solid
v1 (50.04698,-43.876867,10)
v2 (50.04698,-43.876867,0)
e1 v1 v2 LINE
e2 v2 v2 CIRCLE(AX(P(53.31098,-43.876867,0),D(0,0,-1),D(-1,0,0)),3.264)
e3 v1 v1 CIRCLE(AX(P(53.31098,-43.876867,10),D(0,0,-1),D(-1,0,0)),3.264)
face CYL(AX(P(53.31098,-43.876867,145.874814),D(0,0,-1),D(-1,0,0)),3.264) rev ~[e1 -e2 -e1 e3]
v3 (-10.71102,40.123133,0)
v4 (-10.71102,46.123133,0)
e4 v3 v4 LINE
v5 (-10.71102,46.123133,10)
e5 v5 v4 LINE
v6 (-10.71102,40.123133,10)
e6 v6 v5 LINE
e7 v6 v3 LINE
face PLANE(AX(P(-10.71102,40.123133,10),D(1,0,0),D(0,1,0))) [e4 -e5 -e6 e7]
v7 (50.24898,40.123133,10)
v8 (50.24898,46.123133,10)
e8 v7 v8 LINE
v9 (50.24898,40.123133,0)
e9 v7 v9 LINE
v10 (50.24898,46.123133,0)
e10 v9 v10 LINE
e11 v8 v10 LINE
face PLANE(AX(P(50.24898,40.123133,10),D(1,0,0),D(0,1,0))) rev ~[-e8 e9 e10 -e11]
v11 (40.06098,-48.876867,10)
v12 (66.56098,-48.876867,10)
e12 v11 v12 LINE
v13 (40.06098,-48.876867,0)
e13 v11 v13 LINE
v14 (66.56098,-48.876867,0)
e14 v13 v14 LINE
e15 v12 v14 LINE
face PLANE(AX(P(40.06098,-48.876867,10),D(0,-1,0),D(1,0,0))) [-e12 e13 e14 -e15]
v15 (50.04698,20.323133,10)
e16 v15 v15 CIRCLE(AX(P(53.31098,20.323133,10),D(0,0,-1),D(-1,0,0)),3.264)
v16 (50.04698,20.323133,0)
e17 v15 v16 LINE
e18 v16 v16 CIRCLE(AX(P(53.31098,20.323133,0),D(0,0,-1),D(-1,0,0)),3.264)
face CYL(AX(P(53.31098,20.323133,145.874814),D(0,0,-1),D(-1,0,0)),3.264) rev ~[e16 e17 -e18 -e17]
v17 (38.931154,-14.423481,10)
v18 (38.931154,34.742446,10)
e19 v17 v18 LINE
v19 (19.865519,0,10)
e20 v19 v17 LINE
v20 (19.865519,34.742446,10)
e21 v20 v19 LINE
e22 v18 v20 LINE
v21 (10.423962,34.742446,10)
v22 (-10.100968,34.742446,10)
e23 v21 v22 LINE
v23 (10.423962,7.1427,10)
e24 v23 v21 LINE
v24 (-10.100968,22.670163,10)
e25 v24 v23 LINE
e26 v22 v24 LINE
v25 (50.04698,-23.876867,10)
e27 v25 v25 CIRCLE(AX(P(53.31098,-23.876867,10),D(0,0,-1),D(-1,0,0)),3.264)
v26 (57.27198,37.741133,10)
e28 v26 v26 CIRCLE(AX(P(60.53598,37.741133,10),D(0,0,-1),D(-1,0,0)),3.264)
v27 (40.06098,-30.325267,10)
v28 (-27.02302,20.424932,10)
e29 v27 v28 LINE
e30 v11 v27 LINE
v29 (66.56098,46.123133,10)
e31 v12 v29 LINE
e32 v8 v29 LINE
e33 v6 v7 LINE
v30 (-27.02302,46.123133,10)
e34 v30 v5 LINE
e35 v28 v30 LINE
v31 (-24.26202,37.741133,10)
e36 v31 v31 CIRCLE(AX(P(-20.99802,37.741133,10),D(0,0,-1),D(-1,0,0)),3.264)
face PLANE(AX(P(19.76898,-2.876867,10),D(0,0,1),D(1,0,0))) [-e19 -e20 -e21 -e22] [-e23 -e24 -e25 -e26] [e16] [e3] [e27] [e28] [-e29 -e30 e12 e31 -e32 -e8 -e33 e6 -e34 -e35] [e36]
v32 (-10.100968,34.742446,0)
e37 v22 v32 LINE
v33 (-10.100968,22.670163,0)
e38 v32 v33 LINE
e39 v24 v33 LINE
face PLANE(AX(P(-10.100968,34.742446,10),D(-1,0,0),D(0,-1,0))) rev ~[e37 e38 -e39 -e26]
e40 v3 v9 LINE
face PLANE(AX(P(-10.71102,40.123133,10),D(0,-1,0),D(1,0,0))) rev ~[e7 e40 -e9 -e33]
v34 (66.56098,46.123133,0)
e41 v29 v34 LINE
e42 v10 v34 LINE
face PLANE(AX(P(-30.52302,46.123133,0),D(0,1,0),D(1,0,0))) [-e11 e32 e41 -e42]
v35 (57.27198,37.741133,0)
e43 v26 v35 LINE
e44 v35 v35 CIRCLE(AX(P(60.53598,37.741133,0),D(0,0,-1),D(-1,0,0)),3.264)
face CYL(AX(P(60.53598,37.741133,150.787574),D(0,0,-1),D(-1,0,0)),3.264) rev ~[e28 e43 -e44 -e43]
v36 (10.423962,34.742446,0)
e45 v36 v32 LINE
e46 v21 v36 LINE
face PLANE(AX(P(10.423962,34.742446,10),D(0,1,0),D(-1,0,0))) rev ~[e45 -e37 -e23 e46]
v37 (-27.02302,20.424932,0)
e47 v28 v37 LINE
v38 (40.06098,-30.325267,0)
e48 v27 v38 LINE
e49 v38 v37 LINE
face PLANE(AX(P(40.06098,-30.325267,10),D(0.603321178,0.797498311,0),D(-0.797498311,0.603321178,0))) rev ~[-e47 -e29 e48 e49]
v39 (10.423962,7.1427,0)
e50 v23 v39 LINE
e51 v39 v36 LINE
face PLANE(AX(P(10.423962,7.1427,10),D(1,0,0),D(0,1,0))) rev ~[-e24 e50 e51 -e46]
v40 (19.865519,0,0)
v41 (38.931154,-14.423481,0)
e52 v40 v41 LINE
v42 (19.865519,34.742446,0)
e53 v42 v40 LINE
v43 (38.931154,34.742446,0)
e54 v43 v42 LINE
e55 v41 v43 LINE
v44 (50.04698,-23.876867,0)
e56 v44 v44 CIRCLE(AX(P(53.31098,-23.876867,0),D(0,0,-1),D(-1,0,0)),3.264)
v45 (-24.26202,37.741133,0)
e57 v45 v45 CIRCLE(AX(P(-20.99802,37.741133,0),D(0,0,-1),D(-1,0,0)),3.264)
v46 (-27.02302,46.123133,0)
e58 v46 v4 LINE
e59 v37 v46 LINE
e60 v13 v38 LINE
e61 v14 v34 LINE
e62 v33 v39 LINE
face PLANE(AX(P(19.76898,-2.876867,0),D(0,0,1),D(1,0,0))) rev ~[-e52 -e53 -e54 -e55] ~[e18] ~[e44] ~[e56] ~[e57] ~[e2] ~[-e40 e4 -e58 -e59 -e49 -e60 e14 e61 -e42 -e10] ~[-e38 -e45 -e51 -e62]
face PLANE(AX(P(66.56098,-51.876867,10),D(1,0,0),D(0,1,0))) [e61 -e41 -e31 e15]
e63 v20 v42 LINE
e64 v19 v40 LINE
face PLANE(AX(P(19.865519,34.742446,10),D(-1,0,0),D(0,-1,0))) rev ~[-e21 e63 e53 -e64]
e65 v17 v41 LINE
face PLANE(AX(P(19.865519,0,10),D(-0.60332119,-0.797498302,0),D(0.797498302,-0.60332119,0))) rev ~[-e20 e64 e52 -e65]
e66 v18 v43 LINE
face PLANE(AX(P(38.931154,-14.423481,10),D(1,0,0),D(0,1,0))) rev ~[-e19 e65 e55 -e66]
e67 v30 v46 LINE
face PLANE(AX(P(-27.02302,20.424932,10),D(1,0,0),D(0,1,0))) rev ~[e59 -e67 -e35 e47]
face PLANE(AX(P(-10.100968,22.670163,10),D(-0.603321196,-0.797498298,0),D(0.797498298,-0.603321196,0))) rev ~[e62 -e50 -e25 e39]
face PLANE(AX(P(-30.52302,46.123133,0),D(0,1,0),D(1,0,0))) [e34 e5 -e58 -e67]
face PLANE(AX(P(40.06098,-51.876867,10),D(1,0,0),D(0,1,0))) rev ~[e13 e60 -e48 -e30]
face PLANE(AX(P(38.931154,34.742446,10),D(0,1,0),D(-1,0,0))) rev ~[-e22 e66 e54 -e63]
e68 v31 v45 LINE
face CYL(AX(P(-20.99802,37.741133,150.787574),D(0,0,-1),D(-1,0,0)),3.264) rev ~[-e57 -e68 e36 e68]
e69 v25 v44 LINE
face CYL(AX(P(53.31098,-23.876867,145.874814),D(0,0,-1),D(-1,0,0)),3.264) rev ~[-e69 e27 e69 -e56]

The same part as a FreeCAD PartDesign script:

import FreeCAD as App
import Part
import Sketcher
from FreeCAD import Vector


def add_polygon(sketch, points):
    """Adds a closed chain of lines whose ends are joined by coincident constraints."""
    first, n = sketch.GeometryCount, len(points)
    for a, b in zip(points, points[1:] + points[:1]):
        sketch.addGeometry(Part.LineSegment(App.Vector(*a, 0), App.Vector(*b, 0)), False)
    for i in range(n):
        sketch.addConstraint(Sketcher.Constraint("Coincident", first + i, 2, first + (i + 1) % n, 1))

doc = App.newDocument("Part")
body = doc.addObject("PartDesign::Body", "Body")

# Sketch on XY plane
sketch1 = body.newObject("Sketcher::SketchObject", "Sketch")
sketch1.AttachmentSupport = (doc.getObject("XY_Plane"), [""])
sketch1.MapMode = "FlatFace"
add_polygon(sketch1, [(-31, 46), (-31, -52), (70, -52), (70, 46)])  # lines 0-3
sketch1.addConstraint(Sketcher.Constraint("Vertical", 0))
sketch1.addConstraint(Sketcher.Constraint("Horizontal", 1))
sketch1.addConstraint(Sketcher.Constraint("Vertical", 2))
sketch1.addConstraint(Sketcher.Constraint("Horizontal", 3))
sketch1.addConstraint(Sketcher.Constraint("DistanceY", 0, 2, 0, 1, 98.0))
sketch1.addConstraint(Sketcher.Constraint("DistanceX", 1, 1, 1, 2, 100.584))
sketch1.addConstraint(Sketcher.Constraint("DistanceX", 0, 2, -1, 1, 30.52302))
sketch1.addConstraint(Sketcher.Constraint("DistanceY", 0, 2, -1, 1, 51.876867))
pad1 = body.newObject("PartDesign::Pad", "Pad")
pad1.Profile = sketch1
pad1.Length = 10

# Sketch on XY plane
sketch2 = body.newObject("Sketcher::SketchObject", "Sketch001")
sketch2.AttachmentSupport = (doc.getObject("XY_Plane"), [""])
sketch2.MapMode = "FlatFace"
sketch2.AttachmentOffset = App.Placement(Vector(0, 0, 10), App.Rotation())
sketch2.addGeometry(Part.Circle(Vector(-21, 37.7, 0), Vector(0, 0, 1), 3.3), False)
sketch2.addGeometry(Part.Circle(Vector(60.5, 37.7, 0), Vector(0, 0, 1), 3.3), False)
sketch2.addConstraint(Sketcher.Constraint("Equal", 0, 1))
sketch2.addConstraint(Sketcher.Constraint("Horizontal", 0, 3, 1, 3))
sketch2.addConstraint(Sketcher.Constraint("Diameter", 0, 6.528))
sketch2.addConstraint(Sketcher.Constraint("DistanceX", 0, 3, 1, 3, 81.534))
sketch2.addConstraint(Sketcher.Constraint("DistanceX", 0, 3, -1, 1, 20.99802))
sketch2.addConstraint(Sketcher.Constraint("DistanceY", -1, 1, 0, 3, 37.741133))
doc.recompute()
hole = body.newObject("PartDesign::Hole", "Hole")
hole.Profile = sketch2
hole.ThreadType = "None"
hole.Diameter = 6.528
hole.DepthType = "ThroughAll"

# Sketch on XY plane
sketch3 = body.newObject("Sketcher::SketchObject", "Sketch002")
sketch3.AttachmentSupport = (doc.getObject("XY_Plane"), [""])
sketch3.MapMode = "FlatFace"
sketch3.AttachmentOffset = App.Placement(Vector(0, 0, 10), App.Rotation())
add_polygon(sketch3, [(-11, 46), (-11, 40), (50, 40), (50, 46)])  # lines 0-3
sketch3.addConstraint(Sketcher.Constraint("Vertical", 0))
sketch3.addConstraint(Sketcher.Constraint("Horizontal", 1))
sketch3.addConstraint(Sketcher.Constraint("Vertical", 2))
sketch3.addConstraint(Sketcher.Constraint("Horizontal", 3))
sketch3.addConstraint(Sketcher.Constraint("DistanceY", 0, 2, 0, 1, 6.0))
sketch3.addConstraint(Sketcher.Constraint("DistanceX", 1, 1, 1, 2, 60.96))
sketch3.addConstraint(Sketcher.Constraint("DistanceX", 0, 2, -1, 1, 10.71102))
sketch3.addConstraint(Sketcher.Constraint("DistanceY", -1, 1, 0, 2, 40.123133))
pocket1 = body.newObject("PartDesign::Pocket", "Pocket")
pocket1.Profile = sketch3
pocket1.Type = "ThroughAll"

# Sketch on XY plane
sketch4 = body.newObject("Sketcher::SketchObject", "Sketch003")
sketch4.AttachmentSupport = (doc.getObject("XY_Plane"), [""])
sketch4.MapMode = "FlatFace"
sketch4.AttachmentOffset = App.Placement(Vector(0, 0, 10), App.Rotation())
add_polygon(sketch4, [(-31, -52), (40, -52), (40, -30), (-31, 23)])  # lines 0-3
sketch4.addConstraint(Sketcher.Constraint("Horizontal", 0))
sketch4.addConstraint(Sketcher.Constraint("Vertical", 1))
sketch4.addConstraint(Sketcher.Constraint("Vertical", 3))
sketch4.addConstraint(Sketcher.Constraint("DistanceX", 0, 1, 0, 2, 70.584))
sketch4.addConstraint(Sketcher.Constraint("DistanceY", 1, 1, 1, 2, 21.5516))
sketch4.addConstraint(Sketcher.Constraint("DistanceY", 3, 2, 3, 1, 74.949609))
sketch4.addConstraint(Sketcher.Constraint("DistanceX", -1, 1, 0, 2, 40.06098))
sketch4.addConstraint(Sketcher.Constraint("DistanceY", 0, 2, -1, 1, 51.876867))
pocket2 = body.newObject("PartDesign::Pocket", "Pocket001")
pocket2.Profile = sketch4
pocket2.Type = "ThroughAll"

# Sketch on XY plane
sketch5 = body.newObject("Sketcher::SketchObject", "Sketch004")
sketch5.AttachmentSupport = (doc.getObject("XY_Plane"), [""])
sketch5.MapMode = "FlatFace"
sketch5.AttachmentOffset = App.Placement(Vector(0, 0, 10), App.Rotation())
add_polygon(sketch5, [(-30.5, 23.1), (-27, 20.4), (-27, 46.1), (-30.5, 46.1)])  # lines 0-3
sketch5.addConstraint(Sketcher.Constraint("Vertical", 1))
sketch5.addConstraint(Sketcher.Constraint("Horizontal", 2))
sketch5.addConstraint(Sketcher.Constraint("Vertical", 3))
sketch5.addConstraint(Sketcher.Constraint("DistanceX", 2, 2, 2, 1, 3.5))
sketch5.addConstraint(Sketcher.Constraint("DistanceY", 1, 1, 1, 2, 25.698201))
sketch5.addConstraint(Sketcher.Constraint("DistanceY", 3, 2, 3, 1, 23.050391))
sketch5.addConstraint(Sketcher.Constraint("DistanceX", 0, 2, -1, 1, 27.02302))
sketch5.addConstraint(Sketcher.Constraint("DistanceY", -1, 1, 0, 2, 20.424932))
pocket3 = body.newObject("PartDesign::Pocket", "Pocket002")
pocket3.Profile = sketch5
pocket3.Type = "ThroughAll"

# Sketch on XY plane
sketch6 = body.newObject("Sketcher::SketchObject", "Sketch005")
sketch6.AttachmentSupport = (doc.getObject("XY_Plane"), [""])
sketch6.MapMode = "FlatFace"
sketch6.AttachmentOffset = App.Placement(Vector(0, 0, 10), App.Rotation())
add_polygon(sketch6, [(66.6, 46.1), (66.6, -51.9), (70.1, -51.9), (70.1, 46.1)])  # lines 0-3
sketch6.addConstraint(Sketcher.Constraint("Vertical", 0))
sketch6.addConstraint(Sketcher.Constraint("Horizontal", 1))
sketch6.addConstraint(Sketcher.Constraint("Vertical", 2))
sketch6.addConstraint(Sketcher.Constraint("Horizontal", 3))
sketch6.addConstraint(Sketcher.Constraint("DistanceY", 0, 2, 0, 1, 98.0))
sketch6.addConstraint(Sketcher.Constraint("DistanceX", 1, 1, 1, 2, 3.5))
sketch6.addConstraint(Sketcher.Constraint("DistanceX", -1, 1, 0, 2, 66.56098))
sketch6.addConstraint(Sketcher.Constraint("DistanceY", 0, 2, -1, 1, 51.876867))
pocket4 = body.newObject("PartDesign::Pocket", "Pocket003")
pocket4.Profile = sketch6
pocket4.Type = "ThroughAll"

# Sketch on XY plane
sketch7 = body.newObject("Sketcher::SketchObject", "Sketch006")
sketch7.AttachmentSupport = (doc.getObject("XY_Plane"), [""])
sketch7.MapMode = "FlatFace"
sketch7.AttachmentOffset = App.Placement(Vector(0, 0, 10), App.Rotation())
sketch7.addGeometry(Part.Circle(Vector(53.3, 20.3, 0), Vector(0, 0, 1), 3.3), False)
sketch7.addGeometry(Part.Circle(Vector(53.3, -43.9, 0), Vector(0, 0, 1), 3.3), False)
sketch7.addGeometry(Part.Circle(Vector(53.3, -23.9, 0), Vector(0, 0, 1), 3.3), False)
sketch7.addConstraint(Sketcher.Constraint("Equal", 0, 1))
sketch7.addConstraint(Sketcher.Constraint("Equal", 1, 2))
sketch7.addConstraint(Sketcher.Constraint("Vertical", 0, 3, 1, 3))
sketch7.addConstraint(Sketcher.Constraint("Vertical", 1, 3, 2, 3))
sketch7.addConstraint(Sketcher.Constraint("Diameter", 0, 6.528))
sketch7.addConstraint(Sketcher.Constraint("DistanceY", 1, 3, 2, 3, 20.0))
sketch7.addConstraint(Sketcher.Constraint("DistanceY", 1, 3, 0, 3, 64.2))
sketch7.addConstraint(Sketcher.Constraint("DistanceX", -1, 1, 0, 3, 53.31098))
sketch7.addConstraint(Sketcher.Constraint("DistanceY", -1, 1, 0, 3, 20.323133))
doc.recompute()
hole2 = body.newObject("PartDesign::Hole", "Hole001")
hole2.Profile = sketch7
hole2.ThreadType = "None"
hole2.Diameter = 6.528
hole2.DepthType = "ThroughAll"

# Sketch on XY plane
sketch8 = body.newObject("Sketcher::SketchObject", "Sketch007")
sketch8.AttachmentSupport = (doc.getObject("XY_Plane"), [""])
sketch8.MapMode = "FlatFace"
sketch8.AttachmentOffset = App.Placement(Vector(0, 0, 10), App.Rotation())
add_polygon(sketch8, [(40.1, -48.9), (40.1, -51.9), (66.6, -51.9), (66.6, -48.9)])  # lines 0-3
sketch8.addConstraint(Sketcher.Constraint("Vertical", 0))
sketch8.addConstraint(Sketcher.Constraint("Horizontal", 1))
sketch8.addConstraint(Sketcher.Constraint("Vertical", 2))
sketch8.addConstraint(Sketcher.Constraint("Horizontal", 3))
sketch8.addConstraint(Sketcher.Constraint("DistanceY", 0, 2, 0, 1, 3.0))
sketch8.addConstraint(Sketcher.Constraint("DistanceX", 1, 1, 1, 2, 26.5))
sketch8.addConstraint(Sketcher.Constraint("DistanceX", -1, 1, 0, 2, 40.06098))
sketch8.addConstraint(Sketcher.Constraint("DistanceY", 0, 2, -1, 1, 51.876867))
pocket5 = body.newObject("PartDesign::Pocket", "Pocket004")
pocket5.Profile = sketch8
pocket5.Type = "ThroughAll"

# Sketch on XY plane
sketch9 = body.newObject("Sketcher::SketchObject", "Sketch008")
sketch9.AttachmentSupport = (doc.getObject("XY_Plane"), [""])
sketch9.MapMode = "FlatFace"
sketch9.AttachmentOffset = App.Placement(Vector(0, 0, 10), App.Rotation())
add_polygon(sketch9, [(10, 35), (-10, 35), (-10, 23), (10, 7)])  # lines 0-3
add_polygon(sketch9, [(39, 35), (20, 35), (20, 0), (39, -14)])  # lines 4-7
sketch9.addConstraint(Sketcher.Constraint("Horizontal", 0))
sketch9.addConstraint(Sketcher.Constraint("Vertical", 1))
sketch9.addConstraint(Sketcher.Constraint("Vertical", 3))
sketch9.addConstraint(Sketcher.Constraint("Horizontal", 4))
sketch9.addConstraint(Sketcher.Constraint("Vertical", 5))
sketch9.addConstraint(Sketcher.Constraint("Vertical", 7))
sketch9.addConstraint(Sketcher.Constraint("PointOnObject", 5, 2, -1))
sketch9.addConstraint(Sketcher.Constraint("Parallel", 2, 6))
sketch9.addConstraint(Sketcher.Constraint("Horizontal", 3, 2, 4, 2))
sketch9.addConstraint(Sketcher.Constraint("DistanceX", 0, 2, 0, 1, 20.52493))
sketch9.addConstraint(Sketcher.Constraint("DistanceY", -1, 1, 2, 2, 7.1427))
sketch9.addConstraint(Sketcher.Constraint("DistanceX", 4, 2, 4, 1, 19.065635))
sketch9.addConstraint(Sketcher.Constraint("DistanceY", 1, 2, 1, 1, 12.072283))
sketch9.addConstraint(Sketcher.Constraint("DistanceY", 3, 1, 3, 2, 27.599746))
sketch9.addConstraint(Sketcher.Constraint("DistanceX", -1, 1, 4, 2, 19.865519))
sketch9.addConstraint(Sketcher.Constraint("DistanceX", 2, 2, 6, 2, 28.507192))
pocket6 = body.newObject("PartDesign::Pocket", "Pocket005")
pocket6.Profile = sketch9
pocket6.Type = "ThroughAll"

doc.recompute()
